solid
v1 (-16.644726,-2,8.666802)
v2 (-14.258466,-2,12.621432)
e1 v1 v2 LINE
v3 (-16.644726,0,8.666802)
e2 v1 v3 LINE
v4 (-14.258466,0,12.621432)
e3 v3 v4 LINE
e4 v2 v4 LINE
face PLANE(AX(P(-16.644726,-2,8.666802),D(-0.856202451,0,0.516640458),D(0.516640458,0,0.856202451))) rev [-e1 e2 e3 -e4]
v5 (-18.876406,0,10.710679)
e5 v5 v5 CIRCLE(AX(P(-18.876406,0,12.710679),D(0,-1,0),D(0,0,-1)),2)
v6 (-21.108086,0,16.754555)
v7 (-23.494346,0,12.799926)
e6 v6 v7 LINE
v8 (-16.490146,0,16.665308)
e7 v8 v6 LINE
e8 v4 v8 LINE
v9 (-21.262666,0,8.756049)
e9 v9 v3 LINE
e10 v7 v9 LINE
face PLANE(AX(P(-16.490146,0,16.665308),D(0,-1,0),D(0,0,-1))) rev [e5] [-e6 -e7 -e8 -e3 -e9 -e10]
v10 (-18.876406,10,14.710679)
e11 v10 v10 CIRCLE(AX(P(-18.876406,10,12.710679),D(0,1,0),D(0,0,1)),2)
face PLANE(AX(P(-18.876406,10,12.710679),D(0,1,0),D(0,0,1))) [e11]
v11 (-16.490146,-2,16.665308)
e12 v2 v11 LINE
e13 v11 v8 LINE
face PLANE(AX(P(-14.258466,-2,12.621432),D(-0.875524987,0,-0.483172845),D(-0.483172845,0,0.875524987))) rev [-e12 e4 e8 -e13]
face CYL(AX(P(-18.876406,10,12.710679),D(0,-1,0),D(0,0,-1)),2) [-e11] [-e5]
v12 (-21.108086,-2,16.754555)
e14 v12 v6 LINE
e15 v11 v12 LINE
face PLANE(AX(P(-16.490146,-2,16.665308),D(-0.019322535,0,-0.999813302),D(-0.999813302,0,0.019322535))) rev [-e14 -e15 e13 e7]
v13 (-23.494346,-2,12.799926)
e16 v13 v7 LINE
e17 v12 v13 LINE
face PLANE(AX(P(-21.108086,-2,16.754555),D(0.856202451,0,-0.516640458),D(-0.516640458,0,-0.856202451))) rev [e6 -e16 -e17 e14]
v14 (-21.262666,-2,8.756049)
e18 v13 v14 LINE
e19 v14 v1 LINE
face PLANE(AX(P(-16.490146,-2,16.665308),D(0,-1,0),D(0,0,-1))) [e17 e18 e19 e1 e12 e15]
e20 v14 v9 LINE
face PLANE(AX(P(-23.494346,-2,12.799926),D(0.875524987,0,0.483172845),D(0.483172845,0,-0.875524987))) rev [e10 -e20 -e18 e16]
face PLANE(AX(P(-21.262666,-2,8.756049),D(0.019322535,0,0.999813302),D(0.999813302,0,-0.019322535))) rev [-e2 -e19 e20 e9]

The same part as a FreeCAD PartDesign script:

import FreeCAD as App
import Part
import Sketcher

V = App.Vector
Q = App.Units.Quantity


def add_polygon(sketch, points):
    """Adds a closed chain of lines whose ends are joined by coincident constraints."""
    first, n = sketch.GeometryCount, len(points)
    for a, b in zip(points, points[1:] + points[:1]):
        sketch.addGeometry(Part.LineSegment(App.Vector(*a, 0), App.Vector(*b, 0)), False)
    for i in range(n):
        sketch.addConstraint(Sketcher.Constraint("Coincident", first + i, 2, first + (i + 1) % n, 1))

doc = App.newDocument("Part")
body = doc.addObject("PartDesign::Body", "Body")

sketch1 = body.newObject("Sketcher::SketchObject", "Sketch")
sketch1.AttachmentSupport = (doc.getObject("XZ_Plane"), [""])
sketch1.MapMode = "FlatFace"
sketch1.addGeometry(Part.Circle(V(-18.9, 12.7, 0), V(0, 0, 1), 2), False)
sketch1.addConstraint([
    Sketcher.Constraint("Diameter", 0, Q("4 mm")),
    Sketcher.Constraint("DistanceY", -1, 1, 0, 3, Q("12.710679 mm")),
    Sketcher.Constraint("DistanceX", 0, 3, -1, 1, Q("18.876406 mm")),
])
pad1 = body.newObject("PartDesign::Pad", "Pad")
pad1.Profile = sketch1
pad1.Length = 10
pad1.Reversed = True

sketch2 = body.newObject("Sketcher::SketchObject", "Sketch001")
sketch2.AttachmentSupport = (doc.getObject("XZ_Plane"), [""])
sketch2.MapMode = "FlatFace"
add_polygon(sketch2, [(-16.5, 16.7), (-21.1, 16.8), (-23.5, 12.8), (-21.3, 8.8), (-16.6, 8.7), (-14.3, 12.6)])
sketch2.addConstraint([
    Sketcher.Constraint("Parallel", 0, 3),
    Sketcher.Constraint("Parallel", 1, 4),
    Sketcher.Constraint("Parallel", 2, 5),
    Sketcher.Constraint("Equal", 0, 1),
    Sketcher.Constraint("Equal", 1, 2),
    Sketcher.Constraint("Equal", 2, 3),
    Sketcher.Constraint("DistanceY", -1, 1, 3, 2, Q("8.666802 mm")),
    Sketcher.Constraint("DistanceX", 2, 2, 4, 2, Q("7.0042 mm")),
    Sketcher.Constraint("DistanceY", -1, 1, 2, 2, Q("8.756049 mm")),
    Sketcher.Constraint("DistanceY", -1, 1, 4, 2, Q("12.621432 mm")),
    Sketcher.Constraint("DistanceY", -1, 1, 5, 2, Q("16.665308 mm")),
    Sketcher.Constraint("DistanceX", 0, 2, -1, 1, Q("21.108086 mm")),
])
pad2 = body.newObject("PartDesign::Pad", "Pad001")
pad2.Profile = sketch2
pad2.Length = 2

doc.recompute()
